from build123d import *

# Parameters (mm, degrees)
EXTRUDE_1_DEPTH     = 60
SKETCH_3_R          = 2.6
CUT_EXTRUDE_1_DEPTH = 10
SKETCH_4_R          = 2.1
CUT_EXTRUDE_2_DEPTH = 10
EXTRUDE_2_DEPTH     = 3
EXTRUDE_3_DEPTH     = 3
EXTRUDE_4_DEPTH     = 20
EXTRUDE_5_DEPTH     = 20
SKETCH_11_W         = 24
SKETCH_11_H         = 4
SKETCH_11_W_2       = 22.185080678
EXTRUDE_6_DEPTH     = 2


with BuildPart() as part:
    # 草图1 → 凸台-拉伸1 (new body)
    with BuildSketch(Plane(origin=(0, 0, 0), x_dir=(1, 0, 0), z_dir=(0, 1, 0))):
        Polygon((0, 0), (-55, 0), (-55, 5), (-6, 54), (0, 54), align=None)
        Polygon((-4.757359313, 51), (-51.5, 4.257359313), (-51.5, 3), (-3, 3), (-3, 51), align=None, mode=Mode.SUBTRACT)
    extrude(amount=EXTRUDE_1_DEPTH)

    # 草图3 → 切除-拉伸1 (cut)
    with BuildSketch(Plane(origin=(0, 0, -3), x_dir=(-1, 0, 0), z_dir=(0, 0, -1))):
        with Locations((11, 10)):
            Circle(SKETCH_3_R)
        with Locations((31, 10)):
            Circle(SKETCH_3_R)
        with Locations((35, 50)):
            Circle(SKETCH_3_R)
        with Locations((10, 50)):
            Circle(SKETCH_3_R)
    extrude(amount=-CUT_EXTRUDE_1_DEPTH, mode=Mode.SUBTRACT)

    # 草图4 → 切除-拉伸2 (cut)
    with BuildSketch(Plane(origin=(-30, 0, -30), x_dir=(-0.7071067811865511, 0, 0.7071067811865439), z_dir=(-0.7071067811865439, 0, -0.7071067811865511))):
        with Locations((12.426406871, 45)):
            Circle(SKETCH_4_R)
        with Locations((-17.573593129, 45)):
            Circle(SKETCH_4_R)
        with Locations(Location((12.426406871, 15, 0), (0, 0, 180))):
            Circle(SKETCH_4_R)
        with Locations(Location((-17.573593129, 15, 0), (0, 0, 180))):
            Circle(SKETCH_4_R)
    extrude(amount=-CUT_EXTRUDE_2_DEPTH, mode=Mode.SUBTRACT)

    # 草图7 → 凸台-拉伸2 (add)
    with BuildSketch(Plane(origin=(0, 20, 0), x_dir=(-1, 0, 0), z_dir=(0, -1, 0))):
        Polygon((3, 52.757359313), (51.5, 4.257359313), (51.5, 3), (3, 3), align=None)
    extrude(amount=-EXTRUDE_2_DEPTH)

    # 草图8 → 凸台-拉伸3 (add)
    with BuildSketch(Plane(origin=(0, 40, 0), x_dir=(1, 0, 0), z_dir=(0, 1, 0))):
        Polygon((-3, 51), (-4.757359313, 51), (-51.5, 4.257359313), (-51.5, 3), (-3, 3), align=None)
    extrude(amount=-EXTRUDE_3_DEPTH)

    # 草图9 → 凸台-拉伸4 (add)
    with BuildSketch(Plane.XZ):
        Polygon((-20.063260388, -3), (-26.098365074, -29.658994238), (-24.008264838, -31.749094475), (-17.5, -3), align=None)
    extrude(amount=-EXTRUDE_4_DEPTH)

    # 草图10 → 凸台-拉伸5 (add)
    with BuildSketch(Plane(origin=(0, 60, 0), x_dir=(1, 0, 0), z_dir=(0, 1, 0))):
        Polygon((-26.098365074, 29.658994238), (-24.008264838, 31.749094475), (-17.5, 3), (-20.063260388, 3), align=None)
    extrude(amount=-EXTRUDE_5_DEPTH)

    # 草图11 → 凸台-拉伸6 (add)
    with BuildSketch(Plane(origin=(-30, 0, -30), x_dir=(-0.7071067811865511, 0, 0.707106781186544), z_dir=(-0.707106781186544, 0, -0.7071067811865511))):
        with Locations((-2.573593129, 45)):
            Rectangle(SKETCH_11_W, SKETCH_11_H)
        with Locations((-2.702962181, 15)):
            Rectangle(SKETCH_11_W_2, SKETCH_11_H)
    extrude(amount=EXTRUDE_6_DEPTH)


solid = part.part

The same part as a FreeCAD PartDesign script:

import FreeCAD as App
import Part
import Sketcher
from FreeCAD import Vector
Q = App.Units.Quantity


def add_polygon(sketch, points):
    """Adds a closed chain of lines whose ends are joined by coincident constraints."""
    first, n = sketch.GeometryCount, len(points)
    for a, b in zip(points, points[1:] + points[:1]):
        sketch.addGeometry(Part.LineSegment(App.Vector(*a, 0), App.Vector(*b, 0)), False)
    for i in range(n):
        sketch.addConstraint(Sketcher.Constraint("Coincident", first + i, 2, first + (i + 1) % n, 1))

doc = App.newDocument("Part")
body = doc.addObject("PartDesign::Body", "Body")

# Sketch on XZ plane
sketch1 = body.newObject("Sketcher::SketchObject", "Sketch")
sketch1.AttachmentSupport = (doc.getObject("XZ_Plane"), [""])
sketch1.MapMode = "FlatFace"
add_polygon(sketch1, [(-55, 0), (0, 0), (0, -54), (-6, -54), (-55, -5)])  # lines 0-4
add_polygon(sketch1, [(-4.757359, -51), (-3, -51), (-3, -3), (-51.5, -3), (-51.5, -4.257359)])  # lines 5-9
sketch1.addConstraint([
    Sketcher.Constraint("Horizontal", 0),
    Sketcher.Constraint("Vertical", 1),
    Sketcher.Constraint("Horizontal", 2),
    Sketcher.Constraint("Vertical", 4),
    Sketcher.Constraint("Horizontal", 5),
    Sketcher.Constraint("Vertical", 6),
    Sketcher.Constraint("Horizontal", 7),
    Sketcher.Constraint("Vertical", 8),
    Sketcher.Constraint("Coincident", 0, 2, -1, 1),
    Sketcher.Constraint("Parallel", 3, 9),
    Sketcher.Constraint("DistanceX", 0, 1, 0, 2, Q("55 mm")),
    Sketcher.Constraint("DistanceX", 2, 2, 2, 1, Q("6 mm")),
    Sketcher.Constraint("DistanceY", 1, 2, 1, 1, Q("54 mm")),
    Sketcher.Constraint("DistanceY", 4, 1, 4, 2, Q("5 mm")),
    Sketcher.Constraint("DistanceY", 6, 1, 6, 2, Q("48 mm")),
    Sketcher.Constraint("DistanceX", 7, 2, 7, 1, Q("48.5 mm")),
    Sketcher.Constraint("DistanceX", 5, 2, -1, 1, Q("3 mm")),
    Sketcher.Constraint("DistanceY", 5, 2, -1, 1, Q("51 mm")),
    Sketcher.Constraint("DistanceX", 5, 1, 5, 2, Q("1.757359 mm")),
])
pad1 = body.newObject("PartDesign::Pad", "Pad")
pad1.Profile = sketch1
pad1.Length = 60
pad1.Reversed = True

# Sketch on XY plane
sketch2 = body.newObject("Sketcher::SketchObject", "Sketch001")
sketch2.AttachmentSupport = (doc.getObject("XY_Plane"), [""])
sketch2.MapMode = "FlatFace"
sketch2.AttachmentOffset = App.Placement(Vector(0, 0, -3), App.Rotation())
sketch2.addGeometry([
    Part.Circle(Vector(-11, 10, 0), Vector(0, 0, 1), 2.6),
    Part.Circle(Vector(-31, 10, 0), Vector(0, 0, 1), 2.6),
    Part.Circle(Vector(-35, 50, 0), Vector(0, 0, 1), 2.6),
    Part.Circle(Vector(-10, 50, 0), Vector(0, 0, 1), 2.6),
], False)
sketch2.addConstraint([
    Sketcher.Constraint("Equal", 0, 1),
    Sketcher.Constraint("Equal", 1, 2),
    Sketcher.Constraint("Equal", 2, 3),
    Sketcher.Constraint("Horizontal", 0, 3, 1, 3),
    Sketcher.Constraint("Horizontal", 2, 3, 3, 3),
    Sketcher.Constraint("Diameter", 0, Q("5.2 mm")),
    Sketcher.Constraint("DistanceX", 0, 3, -1, 1, Q("11 mm")),
    Sketcher.Constraint("DistanceY", -1, 1, 0, 3, Q("10 mm")),
    Sketcher.Constraint("DistanceX", 1, 3, -1, 1, Q("31 mm")),
    Sketcher.Constraint("DistanceX", 2, 3, -1, 1, Q("35 mm")),
    Sketcher.Constraint("DistanceY", -1, 1, 2, 3, Q("50 mm")),
    Sketcher.Constraint("DistanceX", 3, 3, -1, 1, Q("10 mm")),
])
pocket1 = body.newObject("PartDesign::Pocket", "Pocket")
pocket1.Profile = sketch2
pocket1.Length = 10
pocket1.Reversed = True

# Sketch on an angled plane
sketch3 = body.newObject("Sketcher::SketchObject", "Sketch002")
sketch3.Placement = App.Placement(Vector(-30, 0, -30), App.Rotation(Vector(-0.707106781, 0, 0.707106781), Vector(0, 0.999999999, 0), Vector(-0.707106781, 0, -0.707106781), "ZXY"))
sketch3.addGeometry([
    Part.Circle(Vector(12.426407, 45, 0), Vector(0, 0, 1), 2.1),
    Part.Circle(Vector(-17.573593, 45, 0), Vector(0, 0, 1), 2.1),
    Part.Circle(Vector(12.426407, 15, 0), Vector(0, 0, 1), 2.1),
    Part.Circle(Vector(-17.573593, 15, 0), Vector(0, 0, 1), 2.1),
], False)
sketch3.addConstraint([
    Sketcher.Constraint("Equal", 0, 1),
    Sketcher.Constraint("Equal", 1, 2),
    Sketcher.Constraint("Equal", 2, 3),
    Sketcher.Constraint("Horizontal", 0, 3, 1, 3),
    Sketcher.Constraint("Horizontal", 2, 3, 3, 3),
    Sketcher.Constraint("Vertical", 0, 3, 2, 3),
    Sketcher.Constraint("Vertical", 1, 3, 3, 3),
    Sketcher.Constraint("Diameter", 0, Q("4.2 mm")),
    Sketcher.Constraint("DistanceY", -1, 1, 0, 3, Q("45 mm")),
    Sketcher.Constraint("DistanceY", -1, 1, 2, 3, Q("15 mm")),
    Sketcher.Constraint("DistanceX", 1, 3, 0, 3, Q("30 mm")),
    Sketcher.Constraint("DistanceX", -1, 1, 0, 3, Q("12.426407 mm")),
])
pocket2 = body.newObject("PartDesign::Pocket", "Pocket001")
pocket2.Profile = sketch3
pocket2.Length = 10

# Sketch on XZ plane
sketch4 = body.newObject("Sketcher::SketchObject", "Sketch003")
sketch4.AttachmentSupport = (doc.getObject("XZ_Plane"), [""])
sketch4.MapMode = "FlatFace"
sketch4.AttachmentOffset = App.Placement(Vector(0, 0, -20), App.Rotation())
add_polygon(sketch4, [(-51.5, -4.257359), (-3, -52.757359), (-3, -3), (-51.5, -3)])  # lines 0-3
sketch4.addConstraint([
    Sketcher.Constraint("Vertical", 1),
    Sketcher.Constraint("Horizontal", 2),
    Sketcher.Constraint("Vertical", 3),
    Sketcher.Constraint("Angle", 0, Q("-45 deg")),
    Sketcher.Constraint("DistanceX", 2, 2, 2, 1, Q("48.5 mm")),
    Sketcher.Constraint("DistanceX", 0, 2, -1, 1, Q("3 mm")),
    Sketcher.Constraint("DistanceY", 1, 2, -1, 1, Q("3 mm")),
    Sketcher.Constraint("DistanceY", 1, 1, 1, 2, Q("49.757359 mm")),
])
pad2 = body.newObject("PartDesign::Pad", "Pad001")
pad2.Profile = sketch4
pad2.Length = 3
pad2.Reversed = True

# Sketch on XZ plane
sketch5 = body.newObject("Sketcher::SketchObject", "Sketch004")
sketch5.AttachmentSupport = (doc.getObject("XZ_Plane"), [""])
sketch5.MapMode = "FlatFace"
sketch5.AttachmentOffset = App.Placement(Vector(0, 0, -40), App.Rotation())
add_polygon(sketch5, [(-3, -51), (-4.757359, -51), (-51.5, -4.257359), (-51.5, -3), (-3, -3)])  # lines 0-4
sketch5.addConstraint([
    Sketcher.Constraint("Horizontal", 0),
    Sketcher.Constraint("Vertical", 2),
    Sketcher.Constraint("Horizontal", 3),
    Sketcher.Constraint("Vertical", 4),
    Sketcher.Constraint("DistanceY", 4, 2, 4, 1, Q("48 mm")),
    Sketcher.Constraint("Angle", 1, Q("135 deg")),
    Sketcher.Constraint("DistanceX", 3, 1, 3, 2, Q("48.5 mm")),
    Sketcher.Constraint("DistanceY", 0, 2, -1, 1, Q("51 mm")),
    Sketcher.Constraint("DistanceX", 3, 2, -1, 1, Q("3 mm")),
    Sketcher.Constraint("DistanceX", 0, 2, 0, 1, Q("1.757359 mm")),
])
pad3 = body.newObject("PartDesign::Pad", "Pad002")
pad3.Profile = sketch5
pad3.Length = 3

# Sketch on XZ plane
sketch6 = body.newObject("Sketcher::SketchObject", "Sketch005")
sketch6.AttachmentSupport = (doc.getObject("XZ_Plane"), [""])
sketch6.MapMode = "FlatFace"
add_polygon(sketch6, [(-20.06326, -3), (-26.098365, -29.658994), (-24.008265, -31.749094), (-17.5, -3)])  # lines 0-3
sketch6.addConstraint([
    Sketcher.Constraint("Horizontal", 3),
    Sketcher.Constraint("Parallel", 0, 2),
    Sketcher.Constraint("Angle", 1, Q("-45 deg")),
    Sketcher.Constraint("DistanceY", 2, 2, -1, 1, Q("3 mm")),
    Sketcher.Constraint("DistanceX", 2, 2, -1, 1, Q("17.5 mm")),
    Sketcher.Constraint("DistanceX", 3, 2, 3, 1, Q("2.56326 mm")),
    Sketcher.Constraint("DistanceX", 0, 2, 1, 2, Q("2.0901 mm")),
    Sketcher.Constraint("Distance", 0, Q("27.333578 mm")),
])
pad4 = body.newObject("PartDesign::Pad", "Pad003")
pad4.Profile = sketch6
pad4.Length = 20
pad4.Reversed = True

# Sketch on XZ plane
sketch7 = body.newObject("Sketcher::SketchObject", "Sketch006")
sketch7.AttachmentSupport = (doc.getObject("XZ_Plane"), [""])
sketch7.MapMode = "FlatFace"
sketch7.AttachmentOffset = App.Placement(Vector(0, 0, -60), App.Rotation())
add_polygon(sketch7, [(-24.008265, -31.749094), (-26.098365, -29.658994), (-20.06326, -3), (-17.5, -3)])  # lines 0-3
sketch7.addConstraint([
    Sketcher.Constraint("Horizontal", 2),
    Sketcher.Constraint("Parallel", 1, 3),
    Sketcher.Constraint("Angle", 0, Q("135 deg")),
    Sketcher.Constraint("DistanceY", 1, 2, -1, 1, Q("3 mm")),
    Sketcher.Constraint("DistanceX", 2, 2, -1, 1, Q("17.5 mm")),
    Sketcher.Constraint("DistanceX", 2, 1, 2, 2, Q("2.56326 mm")),
    Sketcher.Constraint("DistanceX", 0, 2, 3, 2, Q("2.0901 mm")),
    Sketcher.Constraint("Distance", 1, Q("27.333578 mm")),
])
pad5 = body.newObject("PartDesign::Pad", "Pad004")
pad5.Profile = sketch7
pad5.Length = 20

# Sketch on an angled plane
sketch8 = body.newObject("Sketcher::SketchObject", "Sketch007")
sketch8.Placement = App.Placement(Vector(-30, 0, -30), App.Rotation(Vector(-0.707106781, 0, 0.707106781), Vector(0, 0.999999999, 0), Vector(-0.707106781, 0, -0.707106781), "ZXY"))
add_polygon(sketch8, [(-14.573593, 47), (-14.573593, 43), (9.426407, 43), (9.426407, 47)])  # lines 0-3
add_polygon(sketch8, [(-13.795503, 17), (-13.795503, 13), (8.389578, 13), (8.389578, 17)])  # lines 4-7
sketch8.addConstraint([
    Sketcher.Constraint("Vertical", 0),
    Sketcher.Constraint("Horizontal", 1),
    Sketcher.Constraint("Vertical", 2),
    Sketcher.Constraint("Horizontal", 3),
    Sketcher.Constraint("Vertical", 4),
    Sketcher.Constraint("Horizontal", 5),
    Sketcher.Constraint("Vertical", 6),
    Sketcher.Constraint("Horizontal", 7),
    Sketcher.Constraint("Equal", 2, 4),
    Sketcher.Constraint("DistanceX", 1, 1, 1, 2, Q("24 mm")),
    Sketcher.Constraint("DistanceY", 0, 2, 0, 1, Q("4 mm")),
    Sketcher.Constraint("DistanceY", -1, 1, 0, 2, Q("43 mm")),
    Sketcher.Constraint("DistanceY", -1, 1, 4, 2, Q("13 mm")),
    Sketcher.Constraint("DistanceX", 5, 1, 5, 2, Q("22.185081 mm")),
    Sketcher.Constraint("DistanceX", -1, 1, 5, 2, Q("8.389578 mm")),
    Sketcher.Constraint("DistanceX", 0, 2, 4, 2, Q("0.778091 mm")),
])
pad6 = body.newObject("PartDesign::Pad", "Pad005")
pad6.Profile = sketch8
pad6.Length = 2

doc.recompute()
